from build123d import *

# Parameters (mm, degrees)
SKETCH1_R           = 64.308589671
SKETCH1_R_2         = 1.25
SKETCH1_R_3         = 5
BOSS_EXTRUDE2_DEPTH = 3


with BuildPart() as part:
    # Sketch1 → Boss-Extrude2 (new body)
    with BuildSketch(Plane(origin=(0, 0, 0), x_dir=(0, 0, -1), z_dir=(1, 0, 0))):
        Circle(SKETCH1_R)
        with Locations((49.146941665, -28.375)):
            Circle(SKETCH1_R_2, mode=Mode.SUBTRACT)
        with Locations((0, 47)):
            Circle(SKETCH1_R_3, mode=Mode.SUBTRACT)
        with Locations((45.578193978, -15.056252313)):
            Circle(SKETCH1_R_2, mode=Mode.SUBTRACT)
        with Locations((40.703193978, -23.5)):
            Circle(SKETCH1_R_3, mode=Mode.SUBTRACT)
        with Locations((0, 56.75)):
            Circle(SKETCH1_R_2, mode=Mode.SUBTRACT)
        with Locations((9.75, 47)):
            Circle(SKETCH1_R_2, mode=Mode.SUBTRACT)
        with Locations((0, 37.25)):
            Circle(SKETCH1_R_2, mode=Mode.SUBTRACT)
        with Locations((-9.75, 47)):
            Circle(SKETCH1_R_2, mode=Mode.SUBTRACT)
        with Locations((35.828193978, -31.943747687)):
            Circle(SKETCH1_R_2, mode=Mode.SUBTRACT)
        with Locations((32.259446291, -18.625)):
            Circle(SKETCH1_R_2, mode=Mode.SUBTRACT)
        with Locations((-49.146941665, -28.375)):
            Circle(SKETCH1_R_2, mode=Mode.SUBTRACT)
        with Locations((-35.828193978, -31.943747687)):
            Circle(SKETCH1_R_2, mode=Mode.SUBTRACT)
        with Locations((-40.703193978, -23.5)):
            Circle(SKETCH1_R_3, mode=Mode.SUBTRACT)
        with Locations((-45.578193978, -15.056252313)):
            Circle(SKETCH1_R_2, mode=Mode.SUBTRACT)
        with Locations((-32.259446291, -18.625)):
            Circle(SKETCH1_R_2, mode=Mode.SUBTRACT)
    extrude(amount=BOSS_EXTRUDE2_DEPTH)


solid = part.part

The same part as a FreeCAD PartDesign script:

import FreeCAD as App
import Part
import Sketcher

V = App.Vector

doc = App.newDocument("Part")
body = doc.addObject("PartDesign::Body", "Body")

# Sketch on YZ plane
sketch1 = body.newObject("Sketcher::SketchObject", "Sketch")
sketch1.AttachmentSupport = (doc.getObject("YZ_Plane"), [""])
sketch1.MapMode = "FlatFace"
sketch1.addGeometry([
    Part.Circle(V(0, 0, 0), V(0, 0, 1), 64.3),  # 0
    Part.Circle(V(-28.4, 49.1, 0), V(0, 0, 1), 1.2),  # 1
    Part.Circle(V(-23.5, 40.7, 0), V(0, 0, 1), 5),  # 2
    Part.Circle(V(-31.9, 35.8, 0), V(0, 0, 1), 1.2),  # 3
    Part.Circle(V(-15.1, 45.6, 0), V(0, 0, 1), 1.2),  # 4
    Part.Circle(V(-18.6, 32.3, 0), V(0, 0, 1), 1.2),  # 5
    Part.Circle(V(-31.9, -35.8, 0), V(0, 0, 1), 1.2),  # 6
    Part.Circle(V(-28.4, -49.1, 0), V(0, 0, 1), 1.2),  # 7
    Part.Circle(V(-23.5, -40.7, 0), V(0, 0, 1), 5),  # 8
    Part.Circle(V(-18.6, -32.3, 0), V(0, 0, 1), 1.2),  # 9
    Part.Circle(V(-15.1, -45.6, 0), V(0, 0, 1), 1.2),  # 10
    Part.Circle(V(47, 9.8, 0), V(0, 0, 1), 1.2),  # 11
    Part.Circle(V(37.2, 0, 0), V(0, 0, 1), 1.2),  # 12
    Part.Circle(V(47, 0, 0), V(0, 0, 1), 5),  # 13
    Part.Circle(V(47, -9.8, 0), V(0, 0, 1), 1.2),  # 14
    Part.Circle(V(56.8, 0, 0), V(0, 0, 1), 1.2),  # 15
], False)
sketch1.addConstraint([
    Sketcher.Constraint("Coincident", 0, 3, -1, 1),
    Sketcher.Constraint("Equal", 1, 3),
    Sketcher.Constraint("Equal", 3, 4),
    Sketcher.Constraint("Equal", 4, 5),
    Sketcher.Constraint("Equal", 5, 6),
    Sketcher.Constraint("Equal", 6, 7),
    Sketcher.Constraint("Equal", 2, 8),
    Sketcher.Constraint("Equal", 7, 9),
    Sketcher.Constraint("Equal", 9, 10),
    Sketcher.Constraint("Equal", 10, 11),
    Sketcher.Constraint("Equal", 11, 12),
    Sketcher.Constraint("Equal", 8, 13),
    Sketcher.Constraint("Equal", 12, 14),
    Sketcher.Constraint("Equal", 14, 15),
    Sketcher.Constraint("Symmetric", 3, 3, 6, 3, -1),
    Sketcher.Constraint("Symmetric", 1, 3, 7, 3, -1),
    Sketcher.Constraint("Symmetric", 2, 3, 8, 3, -1),
    Sketcher.Constraint("Symmetric", 5, 3, 9, 3, -1),
    Sketcher.Constraint("Symmetric", 4, 3, 10, 3, -1),
    Sketcher.Constraint("Symmetric", 11, 3, 14, 3, -1),
    Sketcher.Constraint("PointOnObject", 12, 3, -1),
    Sketcher.Constraint("PointOnObject", 13, 3, -1),
    Sketcher.Constraint("PointOnObject", 15, 3, -1),
    Sketcher.Constraint("Vertical", 11, 3, 13, 3),
    Sketcher.Constraint("Diameter", 2, 10.0),
    Sketcher.Constraint("Diameter", 1, 2.5),
    Sketcher.Constraint("DistanceX", -1, 1, 11, 3, 47.0),
    Sketcher.Constraint("DistanceX", 2, 3, -1, 1, 23.5),
    Sketcher.Constraint("DistanceY", 14, 3, 11, 3, 19.5),
    Sketcher.Constraint("DistanceX", 12, 3, 15, 3, 19.5),
    Sketcher.Constraint("Diameter", 0, 128.617179),
    Sketcher.Constraint("DistanceX", -1, 1, 12, 3, 37.25),
    Sketcher.Constraint("DistanceY", 3, 3, 4, 3, 9.75),
    Sketcher.Constraint("DistanceX", 1, 3, 5, 3, 9.75),
    Sketcher.Constraint("DistanceX", 1, 3, -1, 1, 28.375),
    Sketcher.Constraint("DistanceY", 3, 3, 2, 3, 4.875),
    Sketcher.Constraint("DistanceY", -1, 1, 1, 3, 49.146942),
    Sketcher.Constraint("DistanceY", 6, 3, 5, 3, 68.08764),
    Sketcher.Constraint("DistanceY", -1, 1, 2, 3, 40.703194),
    Sketcher.Constraint("DistanceX", 3, 3, -1, 1, 31.943748),
    Sketcher.Constraint("DistanceX", 4, 3, -1, 1, 15.056252),
])
pad1 = body.newObject("PartDesign::Pad", "Pad")
pad1.Profile = sketch1
pad1.Length = 3

doc.recompute()
